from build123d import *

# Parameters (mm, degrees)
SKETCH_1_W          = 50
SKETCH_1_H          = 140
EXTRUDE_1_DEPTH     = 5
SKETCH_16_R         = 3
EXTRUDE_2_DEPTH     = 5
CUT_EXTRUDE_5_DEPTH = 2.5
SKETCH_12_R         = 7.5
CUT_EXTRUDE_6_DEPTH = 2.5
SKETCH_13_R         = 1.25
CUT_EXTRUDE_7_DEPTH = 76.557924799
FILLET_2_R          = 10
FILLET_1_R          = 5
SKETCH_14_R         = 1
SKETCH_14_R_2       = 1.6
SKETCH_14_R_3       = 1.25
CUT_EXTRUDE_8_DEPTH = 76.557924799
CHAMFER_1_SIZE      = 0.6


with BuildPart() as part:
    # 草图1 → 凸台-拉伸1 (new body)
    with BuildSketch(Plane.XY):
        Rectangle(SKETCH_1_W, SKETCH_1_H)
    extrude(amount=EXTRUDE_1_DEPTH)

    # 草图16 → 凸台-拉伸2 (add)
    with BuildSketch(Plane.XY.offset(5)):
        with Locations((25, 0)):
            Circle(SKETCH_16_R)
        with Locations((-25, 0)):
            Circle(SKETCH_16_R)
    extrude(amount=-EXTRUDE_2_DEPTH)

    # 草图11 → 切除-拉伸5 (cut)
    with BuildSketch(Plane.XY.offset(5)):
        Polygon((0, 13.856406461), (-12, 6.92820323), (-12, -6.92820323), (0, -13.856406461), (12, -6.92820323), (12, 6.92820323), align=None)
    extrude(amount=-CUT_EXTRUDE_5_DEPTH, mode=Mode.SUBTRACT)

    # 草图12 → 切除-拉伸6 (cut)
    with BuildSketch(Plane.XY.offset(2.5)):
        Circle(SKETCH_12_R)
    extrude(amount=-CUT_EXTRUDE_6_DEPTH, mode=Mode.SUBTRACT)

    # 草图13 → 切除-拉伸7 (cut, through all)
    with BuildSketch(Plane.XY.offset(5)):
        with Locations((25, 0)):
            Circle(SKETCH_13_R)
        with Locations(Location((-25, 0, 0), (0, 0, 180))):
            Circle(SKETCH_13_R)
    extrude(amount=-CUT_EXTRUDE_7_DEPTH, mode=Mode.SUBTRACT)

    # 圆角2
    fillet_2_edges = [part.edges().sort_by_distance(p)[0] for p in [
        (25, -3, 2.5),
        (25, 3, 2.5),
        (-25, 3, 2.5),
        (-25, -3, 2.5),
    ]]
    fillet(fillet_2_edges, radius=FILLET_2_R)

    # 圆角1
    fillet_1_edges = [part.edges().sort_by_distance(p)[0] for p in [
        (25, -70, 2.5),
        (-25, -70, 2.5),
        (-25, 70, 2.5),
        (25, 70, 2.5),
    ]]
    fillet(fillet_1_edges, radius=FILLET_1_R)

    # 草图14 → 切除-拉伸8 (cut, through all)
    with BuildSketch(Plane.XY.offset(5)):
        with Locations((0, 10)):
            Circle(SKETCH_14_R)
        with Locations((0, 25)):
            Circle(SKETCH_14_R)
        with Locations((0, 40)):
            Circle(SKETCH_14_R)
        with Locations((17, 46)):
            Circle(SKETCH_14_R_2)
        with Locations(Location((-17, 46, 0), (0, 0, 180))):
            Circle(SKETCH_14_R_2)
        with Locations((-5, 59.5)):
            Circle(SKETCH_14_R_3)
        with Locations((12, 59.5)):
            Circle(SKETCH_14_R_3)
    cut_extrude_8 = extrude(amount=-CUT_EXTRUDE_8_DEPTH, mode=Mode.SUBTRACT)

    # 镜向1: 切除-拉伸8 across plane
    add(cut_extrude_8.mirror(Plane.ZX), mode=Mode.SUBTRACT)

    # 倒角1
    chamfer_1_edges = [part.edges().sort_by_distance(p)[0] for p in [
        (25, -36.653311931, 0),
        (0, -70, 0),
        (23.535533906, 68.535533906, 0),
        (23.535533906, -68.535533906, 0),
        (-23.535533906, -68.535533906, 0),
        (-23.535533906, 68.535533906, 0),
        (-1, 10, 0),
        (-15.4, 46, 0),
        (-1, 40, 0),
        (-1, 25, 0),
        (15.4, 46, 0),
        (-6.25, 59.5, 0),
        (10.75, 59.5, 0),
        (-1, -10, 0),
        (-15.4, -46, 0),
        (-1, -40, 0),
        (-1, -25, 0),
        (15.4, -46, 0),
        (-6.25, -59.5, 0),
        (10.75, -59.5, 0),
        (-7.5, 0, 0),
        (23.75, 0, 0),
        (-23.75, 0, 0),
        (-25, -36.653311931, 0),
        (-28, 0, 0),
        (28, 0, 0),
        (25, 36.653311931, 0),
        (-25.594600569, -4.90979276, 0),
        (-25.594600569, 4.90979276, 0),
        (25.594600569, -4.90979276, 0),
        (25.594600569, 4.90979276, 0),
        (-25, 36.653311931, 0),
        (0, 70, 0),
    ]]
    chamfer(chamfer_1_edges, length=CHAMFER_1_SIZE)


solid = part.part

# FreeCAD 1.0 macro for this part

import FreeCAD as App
import Part
import Sketcher
Q = App.Units.Quantity


def edges_at(feature, points):
    """Names of the edges that pass closest to the given points."""
    edges = feature.Shape.Edges
    near = lambda p: min(range(len(edges)), key=lambda i: edges[i].distToShape(Part.Vertex(*p))[0])
    return sorted({f"Edge{near(p) + 1}" for p in points})

doc = App.newDocument("Part")
body = doc.addObject("PartDesign::Body", "Body")

sketch1 = body.newObject("Sketcher::SketchObject", "Sketch")
sketch1.AttachmentSupport = (doc.getObject("XY_Plane"), [""])
sketch1.MapMode = "FlatFace"
sketch1.addGeometry([
    Part.LineSegment(App.Vector(-25, 70, 0), App.Vector(-25, -70, 0)),
    Part.LineSegment(App.Vector(-25, -70, 0), App.Vector(25, -70, 0)),
    Part.LineSegment(App.Vector(25, -70, 0), App.Vector(25, 70, 0)),
    Part.LineSegment(App.Vector(25, 70, 0), App.Vector(-25, 70, 0)),
], False)
sketch1.addConstraint([
    Sketcher.Constraint("Coincident", 0, 2, 1, 1),
    Sketcher.Constraint("Coincident", 1, 2, 2, 1),
    Sketcher.Constraint("Coincident", 2, 2, 3, 1),
    Sketcher.Constraint("Coincident", 3, 2, 0, 1),
    Sketcher.Constraint("Vertical", 0),
    Sketcher.Constraint("Horizontal", 1),
    Sketcher.Constraint("Vertical", 2),
    Sketcher.Constraint("Horizontal", 3),
    Sketcher.Constraint("Symmetric", 0, 2, 2, 2, -1, 1),
    Sketcher.Constraint("DistanceX", 1, 1, 1, 2, Q("50 mm")),
    Sketcher.Constraint("DistanceY", 0, 2, 0, 1, Q("140 mm")),
])
pad1 = body.newObject("PartDesign::Pad", "Pad")
pad1.Profile = sketch1
pad1.Length = 5

sketch2 = body.newObject("Sketcher::SketchObject", "Sketch001")
sketch2.AttachmentSupport = (doc.getObject("XY_Plane"), [""])
sketch2.MapMode = "FlatFace"
sketch2.AttachmentOffset = App.Placement(App.Vector(0, 0, 5), App.Rotation())
sketch2.addGeometry([
    Part.Circle(App.Vector(25, 0, 0), App.Vector(0, 0, 1), 3),
    Part.Circle(App.Vector(-25, 0, 0), App.Vector(0, 0, 1), 3),
], False)
sketch2.addConstraint([
    Sketcher.Constraint("Equal", 0, 1),
    Sketcher.Constraint("Symmetric", 0, 3, 1, 3, -1, 1),
    Sketcher.Constraint("PointOnObject", 0, 3, -1),
    Sketcher.Constraint("Diameter", 0, Q("6 mm")),
    Sketcher.Constraint("DistanceX", -1, 1, 0, 3, Q("25 mm")),
])
pad2 = body.newObject("PartDesign::Pad", "Pad001")
pad2.Profile = sketch2
pad2.Length = 5
pad2.Reversed = True

sketch3 = body.newObject("Sketcher::SketchObject", "Sketch002")
sketch3.AttachmentSupport = (doc.getObject("XY_Plane"), [""])
sketch3.MapMode = "FlatFace"
sketch3.AttachmentOffset = App.Placement(App.Vector(0, 0, 5), App.Rotation())
sketch3.addGeometry([
    Part.LineSegment(App.Vector(0, 14, 0), App.Vector(-12, 7, 0)),
    Part.LineSegment(App.Vector(-12, 7, 0), App.Vector(-12, -7, 0)),
    Part.LineSegment(App.Vector(-12, -7, 0), App.Vector(0, -14, 0)),
    Part.LineSegment(App.Vector(0, -14, 0), App.Vector(12, -7, 0)),
    Part.LineSegment(App.Vector(12, -7, 0), App.Vector(12, 7, 0)),
    Part.LineSegment(App.Vector(12, 7, 0), App.Vector(0, 14, 0)),
], False)
sketch3.addConstraint([
    Sketcher.Constraint("Coincident", 0, 2, 1, 1),
    Sketcher.Constraint("Coincident", 1, 2, 2, 1),
    Sketcher.Constraint("Coincident", 2, 2, 3, 1),
    Sketcher.Constraint("Coincident", 3, 2, 4, 1),
    Sketcher.Constraint("Coincident", 4, 2, 5, 1),
    Sketcher.Constraint("Coincident", 5, 2, 0, 1),
    Sketcher.Constraint("Vertical", 1),
    Sketcher.Constraint("Vertical", 4),
    Sketcher.Constraint("Symmetric", 0, 2, 3, 2, -1, 1),
    Sketcher.Constraint("Symmetric", 2, 2, 5, 2, -1, 1),
    Sketcher.Constraint("PointOnObject", 2, 2, -2),
    Sketcher.Constraint("Parallel", 2, 5),
    Sketcher.Constraint("Horizontal", 1, 2, 3, 2),
    Sketcher.Constraint("Angle", 0, Q("-150 deg")),
    Sketcher.Constraint("DistanceX", 0, 2, -1, 1, Q("12 mm")),
    Sketcher.Constraint("DistanceY", 1, 2, 1, 1, Q("13.856406 mm")),
])
pocket1 = body.newObject("PartDesign::Pocket", "Pocket")
pocket1.Profile = sketch3
pocket1.Length = 2.5

sketch4 = body.newObject("Sketcher::SketchObject", "Sketch003")
sketch4.AttachmentSupport = (doc.getObject("XY_Plane"), [""])
sketch4.MapMode = "FlatFace"
sketch4.AttachmentOffset = App.Placement(App.Vector(0, 0, 2.5), App.Rotation())
sketch4.addGeometry(Part.Circle(App.Vector(0, 0, 0), App.Vector(0, 0, 1), 8), False)
sketch4.addConstraint([
    Sketcher.Constraint("Coincident", 0, 3, -1, 1),
    Sketcher.Constraint("Diameter", 0, Q("15 mm")),
])
pocket2 = body.newObject("PartDesign::Pocket", "Pocket001")
pocket2.Profile = sketch4
pocket2.Length = 2.5

sketch5 = body.newObject("Sketcher::SketchObject", "Sketch004")
sketch5.AttachmentSupport = (doc.getObject("XY_Plane"), [""])
sketch5.MapMode = "FlatFace"
sketch5.AttachmentOffset = App.Placement(App.Vector(0, 0, 5), App.Rotation())
sketch5.addGeometry([
    Part.Circle(App.Vector(25, 0, 0), App.Vector(0, 0, 1), 1.2),
    Part.Circle(App.Vector(-25, 0, 0), App.Vector(0, 0, 1), 1.2),
], False)
sketch5.addConstraint([
    Sketcher.Constraint("Equal", 0, 1),
    Sketcher.Constraint("Symmetric", 0, 3, 1, 3, -1, 1),
    Sketcher.Constraint("PointOnObject", 0, 3, -1),
    Sketcher.Constraint("Diameter", 0, Q("2.5 mm")),
    Sketcher.Constraint("DistanceX", -1, 1, 0, 3, Q("25 mm")),
])
pocket3 = body.newObject("PartDesign::Pocket", "Pocket002")
pocket3.Profile = sketch5
pocket3.Type = "ThroughAll"
doc.recompute()

fillet = body.newObject("PartDesign::Fillet", "Fillet")
fillet.Base = (pocket3, edges_at(pocket3, [
    (25, -3, 2.5),
    (25, 3, 2.5),
    (-25, 3, 2.5),
    (-25, -3, 2.5),
]))
fillet.Radius = 10
doc.recompute()

fillet2 = body.newObject("PartDesign::Fillet", "Fillet001")
fillet2.Base = (fillet, edges_at(fillet, [
    (25, -70, 2.5),
    (-25, -70, 2.5),
    (-25, 70, 2.5),
    (25, 70, 2.5),
]))
fillet2.Radius = 5

sketch6 = body.newObject("Sketcher::SketchObject", "Sketch005")
sketch6.AttachmentSupport = (doc.getObject("XY_Plane"), [""])
sketch6.MapMode = "FlatFace"
sketch6.AttachmentOffset = App.Placement(App.Vector(0, 0, 5), App.Rotation())
sketch6.addGeometry([
    Part.Circle(App.Vector(0, 10, 0), App.Vector(0, 0, 1), 1),
    Part.Circle(App.Vector(0, 25, 0), App.Vector(0, 0, 1), 1),
    Part.Circle(App.Vector(0, 40, 0), App.Vector(0, 0, 1), 1),
    Part.Circle(App.Vector(17, 46, 0), App.Vector(0, 0, 1), 1.6),
    Part.Circle(App.Vector(-17, 46, 0), App.Vector(0, 0, 1), 1.6),
    Part.Circle(App.Vector(-5, 59.5, 0), App.Vector(0, 0, 1), 1.2),
    Part.Circle(App.Vector(12, 59.5, 0), App.Vector(0, 0, 1), 1.2),
], False)
sketch6.addConstraint([
    Sketcher.Constraint("Equal", 0, 1),
    Sketcher.Constraint("Equal", 1, 2),
    Sketcher.Constraint("Equal", 3, 4),
    Sketcher.Constraint("Equal", 5, 6),
    Sketcher.Constraint("Symmetric", 3, 3, 4, 3, -2),
    Sketcher.Constraint("PointOnObject", 0, 3, -2),
    Sketcher.Constraint("PointOnObject", 1, 3, -2),
    Sketcher.Constraint("PointOnObject", 2, 3, -2),
    Sketcher.Constraint("Horizontal", 5, 3, 6, 3),
    Sketcher.Constraint("Diameter", 0, Q("2 mm")),
    Sketcher.Constraint("Diameter", 3, Q("3.2 mm")),
    Sketcher.Constraint("Diameter", 5, Q("2.5 mm")),
    Sketcher.Constraint("DistanceY", -1, 1, 0, 3, Q("10 mm")),
    Sketcher.Constraint("DistanceY", -1, 1, 1, 3, Q("25 mm")),
    Sketcher.Constraint("DistanceY", -1, 1, 2, 3, Q("40 mm")),
    Sketcher.Constraint("DistanceX", -1, 1, 3, 3, Q("17 mm")),
    Sketcher.Constraint("DistanceY", -1, 1, 3, 3, Q("46 mm")),
    Sketcher.Constraint("DistanceX", 5, 3, -1, 1, Q("5 mm")),
    Sketcher.Constraint("DistanceX", -1, 1, 6, 3, Q("12 mm")),
    Sketcher.Constraint("DistanceY", -1, 1, 5, 3, Q("59.5 mm")),
])
pocket4 = body.newObject("PartDesign::Pocket", "Pocket003")
pocket4.Profile = sketch6
pocket4.Type = "ThroughAll"
doc.recompute()

mirrored = body.newObject("PartDesign::Mirrored", "Mirrored")
mirrored.Originals = [pocket4]
mirrored.MirrorPlane = (doc.getObject("XZ_Plane"), [""])
body.Tip = mirrored
doc.recompute()

chamfer = body.newObject("PartDesign::Chamfer", "Chamfer")
chamfer.Base = (mirrored, edges_at(mirrored, [
    (25, -36.653, 0),
    (0, -70, 0),
    (23.536, 68.536, 0),
    (23.536, -68.536, 0),
    (-23.536, -68.536, 0),
    (-23.536, 68.536, 0),
    (-1, 10, 0),
    (-15.4, 46, 0),
    (-1, 40, 0),
    (-1, 25, 0),
    (15.4, 46, 0),
    (-6.25, 59.5, 0),
    (10.75, 59.5, 0),
    (-1, -10, 0),
    (-15.4, -46, 0),
    (-1, -40, 0),
    (-1, -25, 0),
    (15.4, -46, 0),
    (-6.25, -59.5, 0),
    (10.75, -59.5, 0),
    (-7.5, 0, 0),
    (23.75, 0, 0),
    (-23.75, 0, 0),
    (-25, -36.653, 0),
    (-28, 0, 0),
    (28, 0, 0),
    (25, 36.653, 0),
    (-25.595, -4.91, 0),
    (-25.595, 4.91, 0),
    (25.595, -4.91, 0),
    (25.595, 4.91, 0),
    (-25, 36.653, 0),
    (0, 70, 0),
]))
chamfer.Size = 0.6

doc.recompute()
